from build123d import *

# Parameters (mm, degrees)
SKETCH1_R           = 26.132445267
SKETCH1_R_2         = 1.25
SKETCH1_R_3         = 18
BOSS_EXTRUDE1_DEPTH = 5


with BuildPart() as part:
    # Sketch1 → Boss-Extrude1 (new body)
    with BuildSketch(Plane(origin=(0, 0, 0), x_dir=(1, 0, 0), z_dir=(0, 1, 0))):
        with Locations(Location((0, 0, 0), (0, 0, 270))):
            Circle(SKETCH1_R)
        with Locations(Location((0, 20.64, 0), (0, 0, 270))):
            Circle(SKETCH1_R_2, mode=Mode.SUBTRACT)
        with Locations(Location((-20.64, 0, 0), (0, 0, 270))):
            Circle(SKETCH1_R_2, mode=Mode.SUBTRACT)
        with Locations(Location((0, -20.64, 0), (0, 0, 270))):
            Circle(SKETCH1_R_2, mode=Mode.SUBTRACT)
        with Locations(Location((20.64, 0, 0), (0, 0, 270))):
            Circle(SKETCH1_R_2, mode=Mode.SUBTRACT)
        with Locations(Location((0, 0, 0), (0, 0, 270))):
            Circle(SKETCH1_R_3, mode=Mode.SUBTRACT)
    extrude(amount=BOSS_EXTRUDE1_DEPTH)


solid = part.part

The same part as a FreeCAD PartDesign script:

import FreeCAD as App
import Part
import Sketcher
from FreeCAD import Vector

doc = App.newDocument("Part")
params = doc.addObject("Spreadsheet::Sheet", "Params")
for row, (alias, value) in enumerate([
    ("sketch1_diameter", "36 mm"),
    ("sketch1_diameter2", "2.5 mm"),
    ("pad1_length", "5 mm"),
], start=1):
    params.set(f"A{row}", alias)
    params.set(f"B{row}", "=" + value)
    params.setAlias(f"B{row}", alias)

body = doc.addObject("PartDesign::Body", "Body")

# Sketch on XZ plane
sketch1 = doc.addObject("Sketcher::SketchObject", "Sketch")
body.addObject(sketch1)
sketch1.AttachmentSupport = (doc.XZ_Plane, [""])
sketch1.MapMode = "FlatFace"
sketch1.addGeometry(Part.Circle(Vector(0, 0, 0), Vector(0, 0, 1), 26.1), False)
sketch1.addGeometry(Part.Circle(Vector(0, -20.6, 0), Vector(0, 0, 1), 1.2), False)
sketch1.addGeometry(Part.Circle(Vector(-20.6, 0, 0), Vector(0, 0, 1), 1.2), False)
sketch1.addGeometry(Part.Circle(Vector(20.6, 0, 0), Vector(0, 0, 1), 1.2), False)
sketch1.addGeometry(Part.Circle(Vector(0, 0, 0), Vector(0, 0, 1), 18), False)
sketch1.addGeometry(Part.Circle(Vector(0, 20.6, 0), Vector(0, 0, 1), 1.2), False)
sketch1.addConstraint(Sketcher.Constraint("Coincident", 0, 3, -1, 1))
sketch1.addConstraint(Sketcher.Constraint("Coincident", 4, 3, -1, 1))
sketch1.addConstraint(Sketcher.Constraint("Equal", 1, 2))
sketch1.addConstraint(Sketcher.Constraint("Equal", 2, 3))
sketch1.addConstraint(Sketcher.Constraint("Equal", 3, 5))
sketch1.addConstraint(Sketcher.Constraint("Symmetric", 2, 3, 3, 3, -1, 1))
sketch1.addConstraint(Sketcher.Constraint("Symmetric", 1, 3, 5, 3, -1, 1))
sketch1.addConstraint(Sketcher.Constraint("PointOnObject", 1, 3, -2))
sketch1.addConstraint(Sketcher.Constraint("PointOnObject", 2, 3, -1))
sketch1.addConstraint(Sketcher.Constraint("Diameter", 4, 36.0))
sketch1.addConstraint(Sketcher.Constraint("Diameter", 1, 2.5))
sketch1.addConstraint(Sketcher.Constraint("Diameter", 0, 52.264891))
sketch1.addConstraint(Sketcher.Constraint("DistanceY", 1, 3, -1, 1, 20.64))
sketch1.addConstraint(Sketcher.Constraint("DistanceX", 2, 3, -1, 1, 20.64))
sketch1.setExpression("Constraints[9]", "Params.sketch1_diameter")
sketch1.setExpression("Constraints[10]", "Params.sketch1_diameter2")
pad1 = doc.addObject("PartDesign::Pad", "Pad")
body.addObject(pad1)
pad1.Profile = sketch1
pad1.setExpression("Length", "Params.pad1_length")
pad1.Reversed = True

doc.recompute()
